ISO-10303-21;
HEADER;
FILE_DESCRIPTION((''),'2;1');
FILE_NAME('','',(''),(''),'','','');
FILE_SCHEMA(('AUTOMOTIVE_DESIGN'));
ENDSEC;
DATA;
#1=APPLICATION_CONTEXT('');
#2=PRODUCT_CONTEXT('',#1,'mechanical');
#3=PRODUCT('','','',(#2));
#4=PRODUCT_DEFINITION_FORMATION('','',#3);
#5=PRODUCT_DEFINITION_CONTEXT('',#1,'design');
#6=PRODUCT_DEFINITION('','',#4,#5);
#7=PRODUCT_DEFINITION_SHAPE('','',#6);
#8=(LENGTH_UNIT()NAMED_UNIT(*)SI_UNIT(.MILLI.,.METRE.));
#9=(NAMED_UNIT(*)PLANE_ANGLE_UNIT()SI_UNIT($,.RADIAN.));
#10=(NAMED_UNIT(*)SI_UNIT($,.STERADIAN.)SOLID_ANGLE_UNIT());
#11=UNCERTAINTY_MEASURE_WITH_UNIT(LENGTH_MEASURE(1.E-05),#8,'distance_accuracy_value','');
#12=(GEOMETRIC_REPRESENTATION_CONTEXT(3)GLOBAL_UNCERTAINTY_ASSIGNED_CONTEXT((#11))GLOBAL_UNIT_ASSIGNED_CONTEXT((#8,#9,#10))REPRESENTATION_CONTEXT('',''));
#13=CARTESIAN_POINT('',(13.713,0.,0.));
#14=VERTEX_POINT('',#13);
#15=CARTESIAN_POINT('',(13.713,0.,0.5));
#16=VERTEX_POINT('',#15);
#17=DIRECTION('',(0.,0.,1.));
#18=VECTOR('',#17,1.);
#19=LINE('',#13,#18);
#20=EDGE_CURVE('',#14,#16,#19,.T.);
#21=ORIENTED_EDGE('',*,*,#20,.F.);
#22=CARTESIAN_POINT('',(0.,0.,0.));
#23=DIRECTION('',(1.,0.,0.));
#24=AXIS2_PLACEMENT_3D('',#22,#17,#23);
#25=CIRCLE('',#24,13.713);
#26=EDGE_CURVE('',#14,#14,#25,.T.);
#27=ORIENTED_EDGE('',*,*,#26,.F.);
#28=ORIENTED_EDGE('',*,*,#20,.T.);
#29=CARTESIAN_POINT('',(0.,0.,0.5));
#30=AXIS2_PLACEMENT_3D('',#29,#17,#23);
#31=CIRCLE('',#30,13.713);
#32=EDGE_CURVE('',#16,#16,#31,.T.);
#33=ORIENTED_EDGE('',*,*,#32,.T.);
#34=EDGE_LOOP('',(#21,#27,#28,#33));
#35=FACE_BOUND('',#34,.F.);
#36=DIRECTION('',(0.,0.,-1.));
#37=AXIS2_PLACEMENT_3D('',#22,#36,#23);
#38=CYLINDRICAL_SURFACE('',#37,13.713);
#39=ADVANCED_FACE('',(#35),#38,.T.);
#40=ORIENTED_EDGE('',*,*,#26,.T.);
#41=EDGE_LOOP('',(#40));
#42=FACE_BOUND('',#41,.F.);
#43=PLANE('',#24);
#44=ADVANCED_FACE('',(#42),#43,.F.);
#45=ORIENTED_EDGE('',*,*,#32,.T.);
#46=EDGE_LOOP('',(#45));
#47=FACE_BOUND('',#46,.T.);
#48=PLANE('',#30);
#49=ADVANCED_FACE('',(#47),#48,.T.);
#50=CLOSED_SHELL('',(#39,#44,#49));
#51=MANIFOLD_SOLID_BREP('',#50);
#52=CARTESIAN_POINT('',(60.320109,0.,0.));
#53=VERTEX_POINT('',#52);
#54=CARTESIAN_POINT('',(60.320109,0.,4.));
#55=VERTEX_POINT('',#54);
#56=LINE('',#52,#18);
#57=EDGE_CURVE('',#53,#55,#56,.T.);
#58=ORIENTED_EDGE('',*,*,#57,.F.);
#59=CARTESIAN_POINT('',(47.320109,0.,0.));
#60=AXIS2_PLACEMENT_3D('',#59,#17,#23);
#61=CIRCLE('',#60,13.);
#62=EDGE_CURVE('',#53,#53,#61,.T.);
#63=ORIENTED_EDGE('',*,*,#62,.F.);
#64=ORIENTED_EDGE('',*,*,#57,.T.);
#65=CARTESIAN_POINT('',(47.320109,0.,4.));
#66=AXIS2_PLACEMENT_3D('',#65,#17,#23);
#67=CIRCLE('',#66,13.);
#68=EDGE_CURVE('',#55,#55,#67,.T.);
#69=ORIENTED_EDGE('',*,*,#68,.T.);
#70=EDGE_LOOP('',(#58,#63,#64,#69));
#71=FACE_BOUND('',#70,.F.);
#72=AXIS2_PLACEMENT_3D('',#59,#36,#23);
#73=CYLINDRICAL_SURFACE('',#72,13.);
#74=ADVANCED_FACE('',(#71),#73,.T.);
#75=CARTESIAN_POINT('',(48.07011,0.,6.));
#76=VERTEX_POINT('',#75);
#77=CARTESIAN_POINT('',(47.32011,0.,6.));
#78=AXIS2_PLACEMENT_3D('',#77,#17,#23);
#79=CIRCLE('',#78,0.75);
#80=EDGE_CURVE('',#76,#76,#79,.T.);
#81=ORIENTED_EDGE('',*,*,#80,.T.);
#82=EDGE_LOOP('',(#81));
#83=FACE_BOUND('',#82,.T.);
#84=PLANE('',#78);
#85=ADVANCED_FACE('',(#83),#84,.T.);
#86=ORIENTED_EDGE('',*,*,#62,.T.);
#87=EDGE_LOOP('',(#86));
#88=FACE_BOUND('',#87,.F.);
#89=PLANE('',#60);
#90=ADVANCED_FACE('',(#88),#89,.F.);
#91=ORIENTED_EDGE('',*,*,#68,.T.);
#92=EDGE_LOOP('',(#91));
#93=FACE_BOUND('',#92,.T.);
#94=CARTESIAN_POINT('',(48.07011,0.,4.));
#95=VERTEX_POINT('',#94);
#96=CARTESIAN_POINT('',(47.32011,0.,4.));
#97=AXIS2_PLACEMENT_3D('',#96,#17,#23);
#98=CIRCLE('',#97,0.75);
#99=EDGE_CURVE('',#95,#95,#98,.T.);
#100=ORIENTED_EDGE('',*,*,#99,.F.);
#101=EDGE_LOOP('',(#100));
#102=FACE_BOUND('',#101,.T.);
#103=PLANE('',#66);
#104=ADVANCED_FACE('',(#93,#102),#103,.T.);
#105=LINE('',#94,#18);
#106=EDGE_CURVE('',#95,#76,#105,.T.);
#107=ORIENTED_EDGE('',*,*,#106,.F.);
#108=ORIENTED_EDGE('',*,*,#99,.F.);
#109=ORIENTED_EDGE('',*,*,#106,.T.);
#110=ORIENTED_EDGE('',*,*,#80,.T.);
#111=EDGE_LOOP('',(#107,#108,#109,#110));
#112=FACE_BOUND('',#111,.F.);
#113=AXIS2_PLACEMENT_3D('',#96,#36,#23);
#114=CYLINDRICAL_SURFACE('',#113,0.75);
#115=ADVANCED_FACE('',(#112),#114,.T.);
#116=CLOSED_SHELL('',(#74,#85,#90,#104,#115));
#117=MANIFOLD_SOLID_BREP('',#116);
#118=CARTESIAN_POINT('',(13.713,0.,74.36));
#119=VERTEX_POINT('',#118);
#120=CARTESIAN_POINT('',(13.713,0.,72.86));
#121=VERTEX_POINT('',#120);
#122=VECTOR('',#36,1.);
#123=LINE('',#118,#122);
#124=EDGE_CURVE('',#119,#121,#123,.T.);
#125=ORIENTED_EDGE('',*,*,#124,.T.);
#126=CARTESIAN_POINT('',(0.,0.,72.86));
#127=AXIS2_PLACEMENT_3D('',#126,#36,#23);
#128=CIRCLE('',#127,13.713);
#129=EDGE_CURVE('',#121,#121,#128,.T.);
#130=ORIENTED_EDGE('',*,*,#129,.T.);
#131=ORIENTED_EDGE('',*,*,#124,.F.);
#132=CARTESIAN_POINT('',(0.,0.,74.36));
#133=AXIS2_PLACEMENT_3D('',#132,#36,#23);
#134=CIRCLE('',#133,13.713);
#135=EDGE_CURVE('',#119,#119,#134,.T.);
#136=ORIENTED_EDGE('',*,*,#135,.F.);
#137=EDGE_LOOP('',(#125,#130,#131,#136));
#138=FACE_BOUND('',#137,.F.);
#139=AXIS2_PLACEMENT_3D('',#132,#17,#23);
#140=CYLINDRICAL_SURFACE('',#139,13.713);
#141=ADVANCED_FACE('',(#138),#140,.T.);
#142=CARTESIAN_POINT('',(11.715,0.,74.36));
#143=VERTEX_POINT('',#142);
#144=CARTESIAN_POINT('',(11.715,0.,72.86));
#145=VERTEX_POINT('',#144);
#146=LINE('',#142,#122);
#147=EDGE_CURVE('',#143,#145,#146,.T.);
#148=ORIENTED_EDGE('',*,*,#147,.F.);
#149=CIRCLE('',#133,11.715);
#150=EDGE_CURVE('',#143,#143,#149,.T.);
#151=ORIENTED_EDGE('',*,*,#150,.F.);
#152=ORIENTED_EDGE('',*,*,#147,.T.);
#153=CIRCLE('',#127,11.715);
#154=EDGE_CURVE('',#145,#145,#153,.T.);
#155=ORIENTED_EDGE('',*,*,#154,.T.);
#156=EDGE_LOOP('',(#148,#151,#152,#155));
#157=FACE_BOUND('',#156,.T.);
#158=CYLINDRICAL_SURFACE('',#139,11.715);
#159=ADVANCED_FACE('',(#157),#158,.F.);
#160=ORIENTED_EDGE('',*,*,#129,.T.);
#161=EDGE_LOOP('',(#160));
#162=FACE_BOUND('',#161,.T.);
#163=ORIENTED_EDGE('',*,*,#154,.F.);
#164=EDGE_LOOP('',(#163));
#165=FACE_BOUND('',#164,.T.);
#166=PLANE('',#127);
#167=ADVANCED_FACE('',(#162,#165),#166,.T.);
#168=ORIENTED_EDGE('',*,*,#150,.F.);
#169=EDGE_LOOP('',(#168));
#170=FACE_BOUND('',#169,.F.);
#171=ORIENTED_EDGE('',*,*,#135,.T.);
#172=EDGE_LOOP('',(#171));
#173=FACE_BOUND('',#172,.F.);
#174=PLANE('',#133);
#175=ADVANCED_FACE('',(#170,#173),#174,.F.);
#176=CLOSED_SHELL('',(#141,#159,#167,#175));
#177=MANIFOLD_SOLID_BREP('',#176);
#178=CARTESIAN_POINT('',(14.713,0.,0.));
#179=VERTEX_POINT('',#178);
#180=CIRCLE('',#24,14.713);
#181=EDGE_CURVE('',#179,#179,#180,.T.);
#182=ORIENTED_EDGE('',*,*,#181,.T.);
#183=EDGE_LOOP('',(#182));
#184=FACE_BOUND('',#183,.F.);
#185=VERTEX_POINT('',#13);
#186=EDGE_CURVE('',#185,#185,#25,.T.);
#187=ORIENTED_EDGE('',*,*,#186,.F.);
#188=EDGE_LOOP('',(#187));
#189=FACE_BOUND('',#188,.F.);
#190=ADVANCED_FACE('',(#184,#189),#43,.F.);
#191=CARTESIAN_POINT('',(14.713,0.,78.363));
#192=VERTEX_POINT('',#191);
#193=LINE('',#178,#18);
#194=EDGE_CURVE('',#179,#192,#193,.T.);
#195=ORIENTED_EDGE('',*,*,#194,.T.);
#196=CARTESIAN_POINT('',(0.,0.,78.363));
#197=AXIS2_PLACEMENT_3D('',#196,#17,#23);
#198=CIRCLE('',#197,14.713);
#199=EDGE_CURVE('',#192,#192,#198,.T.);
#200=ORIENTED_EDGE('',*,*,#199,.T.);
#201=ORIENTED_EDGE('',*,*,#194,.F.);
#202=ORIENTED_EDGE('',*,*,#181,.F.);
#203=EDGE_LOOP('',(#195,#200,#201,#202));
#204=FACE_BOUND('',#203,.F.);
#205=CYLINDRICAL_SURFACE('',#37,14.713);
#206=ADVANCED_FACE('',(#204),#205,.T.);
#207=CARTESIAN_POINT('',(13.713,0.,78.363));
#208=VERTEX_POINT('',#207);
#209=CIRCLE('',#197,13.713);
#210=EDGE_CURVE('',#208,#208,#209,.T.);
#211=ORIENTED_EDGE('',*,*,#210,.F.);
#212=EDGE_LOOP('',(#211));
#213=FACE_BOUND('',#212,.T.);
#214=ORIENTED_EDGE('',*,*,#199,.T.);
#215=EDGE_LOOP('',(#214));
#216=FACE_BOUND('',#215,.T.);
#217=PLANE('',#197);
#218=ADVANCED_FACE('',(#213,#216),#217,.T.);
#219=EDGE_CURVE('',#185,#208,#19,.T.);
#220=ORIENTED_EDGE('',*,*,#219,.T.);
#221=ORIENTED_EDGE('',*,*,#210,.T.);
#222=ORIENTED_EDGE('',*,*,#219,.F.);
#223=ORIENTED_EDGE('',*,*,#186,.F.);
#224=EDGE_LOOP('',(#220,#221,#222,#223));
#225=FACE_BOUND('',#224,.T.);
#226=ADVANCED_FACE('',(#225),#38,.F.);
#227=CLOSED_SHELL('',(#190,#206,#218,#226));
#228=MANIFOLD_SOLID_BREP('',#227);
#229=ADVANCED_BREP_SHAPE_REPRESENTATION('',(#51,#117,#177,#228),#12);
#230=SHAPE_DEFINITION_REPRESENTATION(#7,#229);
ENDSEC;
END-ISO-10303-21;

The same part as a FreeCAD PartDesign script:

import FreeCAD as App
import Part
import Sketcher

doc = App.newDocument("Part")
body = doc.addObject("PartDesign::Body", "Body")

# Sketch on XY plane
sketch1 = doc.addObject("Sketcher::SketchObject", "Sketch")
body.addObject(sketch1)
sketch1.AttachmentSupport = (doc.XY_Plane, [""])
sketch1.MapMode = "FlatFace"
sketch1.addGeometry(Part.Circle(App.Vector(0, 0, 0), App.Vector(0, 0, 1), 14), False)
sketch1.addConstraint(Sketcher.Constraint("Coincident", 0, 3, -1, 1))
sketch1.addConstraint(Sketcher.Constraint("Diameter", 0, 27.426))
pad1 = doc.addObject("PartDesign::Pad", "Pad")
body.addObject(pad1)
pad1.Profile = sketch1
pad1.Length = 0.5
body2 = doc.addObject("PartDesign::Body", "Body001")

# Sketch on XY plane
sketch2 = doc.addObject("Sketcher::SketchObject", "Sketch001")
body2.addObject(sketch2)
sketch2.AttachmentSupport = (doc.getObject("XY_Plane001"), [""])
sketch2.MapMode = "FlatFace"
sketch2.addGeometry(Part.Circle(App.Vector(0, 0, 0), App.Vector(0, 0, 1), 15), False)
sketch2.addGeometry(Part.Circle(App.Vector(0, 0, 0), App.Vector(0, 0, 1), 14), False)
sketch2.addConstraint(Sketcher.Constraint("Coincident", 0, 3, -1, 1))
sketch2.addConstraint(Sketcher.Constraint("Coincident", 1, 3, -1, 1))
sketch2.addConstraint(Sketcher.Constraint("Diameter", 0, 29.426))
sketch2.addConstraint(Sketcher.Constraint("Diameter", 1, 27.426))
pad2 = doc.addObject("PartDesign::Pad", "Pad001")
body2.addObject(pad2)
pad2.Profile = sketch2
pad2.Length = 78.363
body3 = doc.addObject("PartDesign::Body", "Body002")

# Sketch on XY plane
sketch3 = doc.addObject("Sketcher::SketchObject", "Sketch002")
body3.addObject(sketch3)
sketch3.AttachmentSupport = (doc.getObject("XY_Plane002"), [""])
sketch3.MapMode = "FlatFace"
sketch3.AttachmentOffset = App.Placement(App.Vector(0, 0, 74.36), App.Rotation())
sketch3.addGeometry(Part.Circle(App.Vector(0, 0, 0), App.Vector(0, 0, 1), 14), False)
sketch3.addGeometry(Part.Circle(App.Vector(0, 0, 0), App.Vector(0, 0, 1), 12), False)
sketch3.addConstraint(Sketcher.Constraint("Coincident", 0, 3, -1, 1))
sketch3.addConstraint(Sketcher.Constraint("Coincident", 1, 3, -1, 1))
sketch3.addConstraint(Sketcher.Constraint("Diameter", 1, 23.43))
sketch3.addConstraint(Sketcher.Constraint("Diameter", 0, 27.426))
pad3 = doc.addObject("PartDesign::Pad", "Pad002")
body3.addObject(pad3)
pad3.Profile = sketch3
pad3.Length = 1.5
pad3.Reversed = True
body4 = doc.addObject("PartDesign::Body", "Body003")

# Sketch on XY plane
sketch4 = doc.addObject("Sketcher::SketchObject", "Sketch003")
body4.addObject(sketch4)
sketch4.AttachmentSupport = (doc.getObject("XY_Plane003"), [""])
sketch4.MapMode = "FlatFace"
sketch4.addGeometry(Part.Circle(App.Vector(47, 0, 0), App.Vector(0, 0, 1), 13), False)
sketch4.addConstraint(Sketcher.Constraint("PointOnObject", 0, 3, -1))
sketch4.addConstraint(Sketcher.Constraint("Diameter", 0, 26.0))
sketch4.addConstraint(Sketcher.Constraint("DistanceX", -1, 1, 0, 3, 47.320109))
pad4 = doc.addObject("PartDesign::Pad", "Pad003")
body4.addObject(pad4)
pad4.Profile = sketch4
pad4.Length = 4

# Sketch on XY plane
sketch5 = doc.addObject("Sketcher::SketchObject", "Sketch004")
body4.addObject(sketch5)
sketch5.AttachmentSupport = (doc.getObject("XY_Plane003"), [""])
sketch5.MapMode = "FlatFace"
sketch5.AttachmentOffset = App.Placement(App.Vector(0, 0, 4), App.Rotation())
sketch5.addGeometry(Part.Circle(App.Vector(47.3, 0, 0), App.Vector(0, 0, 1), 0.8), False)
sketch5.addConstraint(Sketcher.Constraint("PointOnObject", 0, 3, -1))
sketch5.addConstraint(Sketcher.Constraint("Diameter", 0, 1.5))
sketch5.addConstraint(Sketcher.Constraint("DistanceX", -1, 1, 0, 3, 47.32011))
pad5 = doc.addObject("PartDesign::Pad", "Pad004")
body4.addObject(pad5)
pad5.Profile = sketch5
pad5.Length = 2

doc.recompute()
